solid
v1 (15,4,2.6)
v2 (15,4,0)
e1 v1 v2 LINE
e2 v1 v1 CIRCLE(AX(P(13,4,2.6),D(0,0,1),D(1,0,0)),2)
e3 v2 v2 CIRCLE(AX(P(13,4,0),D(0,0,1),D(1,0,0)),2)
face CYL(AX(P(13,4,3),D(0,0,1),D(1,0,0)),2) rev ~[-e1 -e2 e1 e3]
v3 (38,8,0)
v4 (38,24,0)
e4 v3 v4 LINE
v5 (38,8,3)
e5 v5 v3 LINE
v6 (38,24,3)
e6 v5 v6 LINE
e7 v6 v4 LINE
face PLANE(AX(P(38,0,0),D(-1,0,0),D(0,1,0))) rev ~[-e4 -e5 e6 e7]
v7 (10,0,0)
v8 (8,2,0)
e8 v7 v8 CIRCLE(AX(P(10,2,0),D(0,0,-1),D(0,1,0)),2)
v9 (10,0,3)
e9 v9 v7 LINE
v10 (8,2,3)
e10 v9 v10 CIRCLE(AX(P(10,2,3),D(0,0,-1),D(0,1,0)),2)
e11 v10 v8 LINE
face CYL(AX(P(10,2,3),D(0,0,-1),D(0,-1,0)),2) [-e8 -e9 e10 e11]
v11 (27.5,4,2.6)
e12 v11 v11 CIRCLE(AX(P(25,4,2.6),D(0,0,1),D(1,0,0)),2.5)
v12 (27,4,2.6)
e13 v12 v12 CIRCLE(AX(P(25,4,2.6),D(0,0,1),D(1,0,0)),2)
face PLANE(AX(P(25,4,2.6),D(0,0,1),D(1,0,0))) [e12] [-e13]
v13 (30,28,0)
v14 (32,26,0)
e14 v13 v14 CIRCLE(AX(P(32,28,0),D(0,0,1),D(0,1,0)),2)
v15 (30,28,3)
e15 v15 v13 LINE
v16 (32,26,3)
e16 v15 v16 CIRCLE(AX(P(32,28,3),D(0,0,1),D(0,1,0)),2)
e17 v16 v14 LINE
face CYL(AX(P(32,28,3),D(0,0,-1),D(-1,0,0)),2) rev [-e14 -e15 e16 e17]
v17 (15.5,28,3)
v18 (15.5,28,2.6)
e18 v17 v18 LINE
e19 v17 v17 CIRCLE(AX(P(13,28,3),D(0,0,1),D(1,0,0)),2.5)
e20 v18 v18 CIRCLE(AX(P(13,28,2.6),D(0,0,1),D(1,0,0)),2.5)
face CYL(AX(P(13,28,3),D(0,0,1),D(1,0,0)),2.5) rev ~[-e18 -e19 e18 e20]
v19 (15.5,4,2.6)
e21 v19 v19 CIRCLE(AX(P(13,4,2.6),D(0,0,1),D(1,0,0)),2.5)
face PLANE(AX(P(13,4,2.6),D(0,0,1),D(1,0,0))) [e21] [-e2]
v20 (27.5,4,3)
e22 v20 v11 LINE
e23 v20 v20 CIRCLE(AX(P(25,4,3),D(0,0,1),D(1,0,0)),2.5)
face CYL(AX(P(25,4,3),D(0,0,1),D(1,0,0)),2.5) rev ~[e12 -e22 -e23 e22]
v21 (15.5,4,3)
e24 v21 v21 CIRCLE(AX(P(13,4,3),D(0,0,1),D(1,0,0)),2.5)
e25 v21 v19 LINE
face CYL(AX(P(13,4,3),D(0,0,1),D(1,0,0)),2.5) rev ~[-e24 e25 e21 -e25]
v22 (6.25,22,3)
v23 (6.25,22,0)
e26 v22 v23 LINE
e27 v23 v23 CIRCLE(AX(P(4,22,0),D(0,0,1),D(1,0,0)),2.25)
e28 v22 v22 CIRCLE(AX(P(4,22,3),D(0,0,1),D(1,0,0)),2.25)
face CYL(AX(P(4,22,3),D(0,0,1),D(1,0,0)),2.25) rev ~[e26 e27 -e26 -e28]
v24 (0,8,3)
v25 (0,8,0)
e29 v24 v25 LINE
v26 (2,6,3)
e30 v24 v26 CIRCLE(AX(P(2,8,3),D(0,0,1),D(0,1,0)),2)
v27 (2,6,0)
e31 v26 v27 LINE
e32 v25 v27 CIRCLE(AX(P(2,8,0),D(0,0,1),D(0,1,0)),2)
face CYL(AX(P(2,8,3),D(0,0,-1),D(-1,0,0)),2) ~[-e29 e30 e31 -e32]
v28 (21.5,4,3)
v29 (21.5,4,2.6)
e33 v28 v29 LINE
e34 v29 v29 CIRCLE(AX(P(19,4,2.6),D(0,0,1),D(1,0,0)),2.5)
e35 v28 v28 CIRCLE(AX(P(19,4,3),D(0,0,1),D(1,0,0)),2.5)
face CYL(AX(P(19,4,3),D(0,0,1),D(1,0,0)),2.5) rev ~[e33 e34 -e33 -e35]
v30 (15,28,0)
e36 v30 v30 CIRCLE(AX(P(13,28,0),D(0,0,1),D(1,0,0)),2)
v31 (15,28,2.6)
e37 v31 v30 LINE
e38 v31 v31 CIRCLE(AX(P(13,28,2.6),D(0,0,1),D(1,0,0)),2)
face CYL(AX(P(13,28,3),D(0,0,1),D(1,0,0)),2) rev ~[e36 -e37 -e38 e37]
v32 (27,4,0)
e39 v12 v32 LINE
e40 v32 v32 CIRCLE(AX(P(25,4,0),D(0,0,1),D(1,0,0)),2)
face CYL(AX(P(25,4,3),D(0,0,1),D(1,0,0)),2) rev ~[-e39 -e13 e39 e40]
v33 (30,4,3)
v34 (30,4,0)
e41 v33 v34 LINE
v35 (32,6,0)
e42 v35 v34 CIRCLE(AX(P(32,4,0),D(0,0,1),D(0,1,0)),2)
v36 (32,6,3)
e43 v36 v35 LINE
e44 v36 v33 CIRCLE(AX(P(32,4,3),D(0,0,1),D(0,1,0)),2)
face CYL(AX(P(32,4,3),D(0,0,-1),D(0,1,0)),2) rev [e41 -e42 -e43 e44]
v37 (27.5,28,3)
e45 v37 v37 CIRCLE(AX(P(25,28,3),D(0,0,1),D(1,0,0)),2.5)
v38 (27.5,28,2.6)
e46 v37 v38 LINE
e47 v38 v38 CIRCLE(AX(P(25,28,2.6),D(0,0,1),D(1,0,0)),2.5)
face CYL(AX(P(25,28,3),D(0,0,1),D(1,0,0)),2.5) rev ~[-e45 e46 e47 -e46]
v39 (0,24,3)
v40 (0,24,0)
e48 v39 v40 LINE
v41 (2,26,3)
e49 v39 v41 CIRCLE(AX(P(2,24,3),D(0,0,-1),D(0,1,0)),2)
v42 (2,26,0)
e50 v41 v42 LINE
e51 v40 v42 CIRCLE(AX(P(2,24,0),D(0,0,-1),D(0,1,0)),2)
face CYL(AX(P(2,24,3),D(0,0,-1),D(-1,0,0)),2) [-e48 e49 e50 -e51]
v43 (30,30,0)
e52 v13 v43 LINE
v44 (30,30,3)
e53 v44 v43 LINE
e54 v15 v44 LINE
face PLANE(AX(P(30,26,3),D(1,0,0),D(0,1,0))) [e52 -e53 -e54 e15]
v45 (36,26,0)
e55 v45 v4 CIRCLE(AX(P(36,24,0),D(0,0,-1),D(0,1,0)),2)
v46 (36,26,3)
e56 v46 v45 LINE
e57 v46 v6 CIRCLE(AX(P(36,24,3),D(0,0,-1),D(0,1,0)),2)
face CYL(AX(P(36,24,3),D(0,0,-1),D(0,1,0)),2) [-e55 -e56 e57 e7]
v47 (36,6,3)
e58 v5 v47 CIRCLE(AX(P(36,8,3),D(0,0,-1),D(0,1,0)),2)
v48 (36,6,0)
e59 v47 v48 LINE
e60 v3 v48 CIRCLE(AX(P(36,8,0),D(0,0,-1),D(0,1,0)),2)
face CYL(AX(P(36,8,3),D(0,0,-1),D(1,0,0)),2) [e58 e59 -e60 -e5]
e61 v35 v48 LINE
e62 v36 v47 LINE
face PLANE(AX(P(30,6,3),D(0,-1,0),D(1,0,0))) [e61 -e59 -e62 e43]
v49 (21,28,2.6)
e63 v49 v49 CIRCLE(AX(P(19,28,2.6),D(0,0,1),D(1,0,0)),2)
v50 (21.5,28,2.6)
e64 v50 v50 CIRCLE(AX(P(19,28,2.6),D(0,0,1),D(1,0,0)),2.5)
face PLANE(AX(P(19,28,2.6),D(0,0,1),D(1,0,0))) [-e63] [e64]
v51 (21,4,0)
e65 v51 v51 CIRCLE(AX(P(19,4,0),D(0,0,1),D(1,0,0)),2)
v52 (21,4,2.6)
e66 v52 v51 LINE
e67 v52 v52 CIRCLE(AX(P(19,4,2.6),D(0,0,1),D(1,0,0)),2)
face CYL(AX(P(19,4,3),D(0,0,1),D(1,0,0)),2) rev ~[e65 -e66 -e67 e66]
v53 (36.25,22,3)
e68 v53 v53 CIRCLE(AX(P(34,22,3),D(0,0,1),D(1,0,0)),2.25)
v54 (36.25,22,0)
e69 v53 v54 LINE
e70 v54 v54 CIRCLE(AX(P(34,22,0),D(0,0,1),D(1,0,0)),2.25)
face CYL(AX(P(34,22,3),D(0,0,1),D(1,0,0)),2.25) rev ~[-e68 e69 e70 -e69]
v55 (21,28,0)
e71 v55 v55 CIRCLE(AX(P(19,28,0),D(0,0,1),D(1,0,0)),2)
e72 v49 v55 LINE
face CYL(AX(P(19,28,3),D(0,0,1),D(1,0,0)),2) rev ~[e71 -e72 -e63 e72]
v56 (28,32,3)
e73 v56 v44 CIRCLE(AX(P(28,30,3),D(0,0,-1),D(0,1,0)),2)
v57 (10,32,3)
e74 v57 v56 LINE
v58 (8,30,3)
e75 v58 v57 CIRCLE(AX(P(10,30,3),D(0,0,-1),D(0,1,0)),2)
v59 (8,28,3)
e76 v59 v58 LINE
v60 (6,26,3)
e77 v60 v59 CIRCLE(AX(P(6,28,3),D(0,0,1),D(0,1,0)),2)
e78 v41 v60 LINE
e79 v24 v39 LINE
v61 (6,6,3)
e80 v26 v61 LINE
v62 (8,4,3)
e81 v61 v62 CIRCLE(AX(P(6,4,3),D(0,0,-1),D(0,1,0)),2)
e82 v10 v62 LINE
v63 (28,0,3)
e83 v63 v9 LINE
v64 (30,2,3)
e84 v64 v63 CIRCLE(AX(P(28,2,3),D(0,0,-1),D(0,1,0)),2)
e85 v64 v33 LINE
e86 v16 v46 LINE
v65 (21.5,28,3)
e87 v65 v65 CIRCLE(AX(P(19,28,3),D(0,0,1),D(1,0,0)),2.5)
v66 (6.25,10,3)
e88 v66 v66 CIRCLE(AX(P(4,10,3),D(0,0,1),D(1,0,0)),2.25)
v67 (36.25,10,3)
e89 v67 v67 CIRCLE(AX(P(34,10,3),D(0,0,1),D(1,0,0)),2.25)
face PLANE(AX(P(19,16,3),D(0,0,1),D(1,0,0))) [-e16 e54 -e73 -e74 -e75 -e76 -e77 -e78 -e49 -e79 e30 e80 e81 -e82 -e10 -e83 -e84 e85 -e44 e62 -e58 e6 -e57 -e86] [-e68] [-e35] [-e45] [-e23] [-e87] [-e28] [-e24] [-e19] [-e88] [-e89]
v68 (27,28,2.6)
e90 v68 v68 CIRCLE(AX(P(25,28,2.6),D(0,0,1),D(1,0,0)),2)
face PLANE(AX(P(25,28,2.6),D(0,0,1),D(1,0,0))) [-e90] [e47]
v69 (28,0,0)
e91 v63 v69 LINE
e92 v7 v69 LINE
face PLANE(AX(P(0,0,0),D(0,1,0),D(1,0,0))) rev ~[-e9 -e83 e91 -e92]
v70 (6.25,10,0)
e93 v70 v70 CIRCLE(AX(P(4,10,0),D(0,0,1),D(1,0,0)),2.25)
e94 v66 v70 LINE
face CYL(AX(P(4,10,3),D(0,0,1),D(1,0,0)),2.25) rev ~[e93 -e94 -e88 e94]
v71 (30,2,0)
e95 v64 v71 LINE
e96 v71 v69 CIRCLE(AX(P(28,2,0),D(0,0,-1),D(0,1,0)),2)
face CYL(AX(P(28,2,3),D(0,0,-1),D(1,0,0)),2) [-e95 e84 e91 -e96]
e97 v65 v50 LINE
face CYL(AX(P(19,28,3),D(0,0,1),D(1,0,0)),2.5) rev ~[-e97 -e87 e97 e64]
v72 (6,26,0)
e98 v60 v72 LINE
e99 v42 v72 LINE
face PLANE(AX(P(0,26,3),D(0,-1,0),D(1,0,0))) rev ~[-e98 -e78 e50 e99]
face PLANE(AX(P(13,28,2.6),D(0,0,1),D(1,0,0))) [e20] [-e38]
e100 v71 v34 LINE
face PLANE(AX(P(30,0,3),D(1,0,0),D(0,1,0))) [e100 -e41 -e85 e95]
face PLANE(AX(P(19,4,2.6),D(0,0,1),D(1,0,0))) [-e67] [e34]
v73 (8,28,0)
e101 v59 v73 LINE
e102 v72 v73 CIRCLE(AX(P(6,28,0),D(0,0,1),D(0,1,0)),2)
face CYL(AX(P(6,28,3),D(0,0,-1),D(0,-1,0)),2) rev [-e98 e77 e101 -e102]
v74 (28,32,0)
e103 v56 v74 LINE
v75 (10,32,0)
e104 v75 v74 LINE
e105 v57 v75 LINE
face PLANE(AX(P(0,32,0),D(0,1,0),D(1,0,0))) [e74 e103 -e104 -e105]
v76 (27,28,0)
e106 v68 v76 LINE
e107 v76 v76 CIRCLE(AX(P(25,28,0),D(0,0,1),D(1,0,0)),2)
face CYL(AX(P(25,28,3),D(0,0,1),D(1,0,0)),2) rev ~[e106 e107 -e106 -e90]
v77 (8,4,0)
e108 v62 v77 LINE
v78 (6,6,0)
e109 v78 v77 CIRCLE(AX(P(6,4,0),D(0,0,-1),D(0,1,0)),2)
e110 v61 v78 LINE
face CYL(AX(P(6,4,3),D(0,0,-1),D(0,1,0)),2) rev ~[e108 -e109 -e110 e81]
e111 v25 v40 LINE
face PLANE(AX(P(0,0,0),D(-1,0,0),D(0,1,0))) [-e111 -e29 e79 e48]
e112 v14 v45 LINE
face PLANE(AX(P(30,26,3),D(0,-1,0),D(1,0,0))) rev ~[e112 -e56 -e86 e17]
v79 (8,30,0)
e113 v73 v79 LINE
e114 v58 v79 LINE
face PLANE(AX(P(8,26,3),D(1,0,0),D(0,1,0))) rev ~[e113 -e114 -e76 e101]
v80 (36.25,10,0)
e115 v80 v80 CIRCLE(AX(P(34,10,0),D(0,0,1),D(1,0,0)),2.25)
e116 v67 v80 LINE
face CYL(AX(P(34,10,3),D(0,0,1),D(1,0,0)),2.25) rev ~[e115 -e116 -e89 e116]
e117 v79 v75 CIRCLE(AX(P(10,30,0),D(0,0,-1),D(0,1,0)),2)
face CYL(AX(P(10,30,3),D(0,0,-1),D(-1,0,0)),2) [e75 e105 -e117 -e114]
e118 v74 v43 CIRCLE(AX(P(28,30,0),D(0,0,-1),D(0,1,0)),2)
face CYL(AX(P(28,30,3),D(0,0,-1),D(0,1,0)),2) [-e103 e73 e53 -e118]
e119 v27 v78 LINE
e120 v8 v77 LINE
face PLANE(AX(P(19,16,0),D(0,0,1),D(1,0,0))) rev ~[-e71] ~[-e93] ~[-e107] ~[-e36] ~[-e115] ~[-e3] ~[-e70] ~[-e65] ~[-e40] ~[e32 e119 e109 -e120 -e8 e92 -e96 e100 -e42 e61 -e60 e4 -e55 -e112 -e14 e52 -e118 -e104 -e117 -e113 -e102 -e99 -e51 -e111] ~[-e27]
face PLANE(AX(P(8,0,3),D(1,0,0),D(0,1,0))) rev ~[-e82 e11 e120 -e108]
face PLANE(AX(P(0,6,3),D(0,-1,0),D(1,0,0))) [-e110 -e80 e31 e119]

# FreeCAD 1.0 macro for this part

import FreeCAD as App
import Part
import Sketcher
from FreeCAD import Vector
Q = App.Units.Quantity


def edges_at(feature, points):
    """Names of the edges that pass closest to the given points."""
    edges = feature.Shape.Edges
    near = lambda p: min(range(len(edges)), key=lambda i: edges[i].distToShape(Part.Vertex(*p))[0])
    return sorted({f"Edge{near(p) + 1}" for p in points})

doc = App.newDocument("Part")
body = doc.addObject("PartDesign::Body", "Body")

sketch1 = body.newObject("Sketcher::SketchObject", "Sketch")
sketch1.AttachmentSupport = (doc.getObject("XY_Plane"), [""])
sketch1.MapMode = "FlatFace"
sketch1.addGeometry(Part.LineSegment(Vector(0, 32, 0), Vector(0, 0, 0)), False)
sketch1.addGeometry(Part.LineSegment(Vector(0, 0, 0), Vector(38, 0, 0)), False)
sketch1.addGeometry(Part.LineSegment(Vector(38, 0, 0), Vector(38, 32, 0)), False)
sketch1.addGeometry(Part.LineSegment(Vector(38, 32, 0), Vector(0, 32, 0)), False)
sketch1.addConstraint(Sketcher.Constraint("Coincident", 0, 2, 1, 1))
sketch1.addConstraint(Sketcher.Constraint("Coincident", 1, 2, 2, 1))
sketch1.addConstraint(Sketcher.Constraint("Coincident", 2, 2, 3, 1))
sketch1.addConstraint(Sketcher.Constraint("Coincident", 3, 2, 0, 1))
sketch1.addConstraint(Sketcher.Constraint("Vertical", 0))
sketch1.addConstraint(Sketcher.Constraint("Horizontal", 1))
sketch1.addConstraint(Sketcher.Constraint("Vertical", 2))
sketch1.addConstraint(Sketcher.Constraint("Horizontal", 3))
sketch1.addConstraint(Sketcher.Constraint("Coincident", 0, 2, -1, 1))
sketch1.addConstraint(Sketcher.Constraint("DistanceX", 1, 1, 1, 2, Q("38 mm")))
sketch1.addConstraint(Sketcher.Constraint("DistanceY", 0, 2, 0, 1, Q("32 mm")))
pad1 = body.newObject("PartDesign::Pad", "Pad")
pad1.Profile = sketch1
pad1.Length = 3

sketch2 = body.newObject("Sketcher::SketchObject", "Sketch001")
sketch2.AttachmentSupport = (doc.getObject("XY_Plane"), [""])
sketch2.MapMode = "FlatFace"
sketch2.AttachmentOffset = App.Placement(Vector(0, 0, 3), App.Rotation())
sketch2.addGeometry(Part.Circle(Vector(19, 28, 0), Vector(0, 0, 1), 2), False)
sketch2.addGeometry(Part.Circle(Vector(13, 28, 0), Vector(0, 0, 1), 2), False)
sketch2.addGeometry(Part.Circle(Vector(25, 28, 0), Vector(0, 0, 1), 2), False)
sketch2.addGeometry(Part.Circle(Vector(25, 4, 0), Vector(0, 0, 1), 2), False)
sketch2.addGeometry(Part.Circle(Vector(13, 4, 0), Vector(0, 0, 1), 2), False)
sketch2.addGeometry(Part.Circle(Vector(19, 4, 0), Vector(0, 0, 1), 2), False)
sketch2.addGeometry(Part.Circle(Vector(4, 22, 0), Vector(0, 0, 1), 2.25), False)
sketch2.addGeometry(Part.Circle(Vector(4, 10, 0), Vector(0, 0, 1), 2.25), False)
sketch2.addGeometry(Part.Circle(Vector(34, 10, 0), Vector(0, 0, 1), 2.25), False)
sketch2.addGeometry(Part.Circle(Vector(34, 22, 0), Vector(0, 0, 1), 2.25), False)
sketch2.addConstraint(Sketcher.Constraint("Equal", 0, 1))
sketch2.addConstraint(Sketcher.Constraint("Equal", 1, 2))
sketch2.addConstraint(Sketcher.Constraint("Equal", 2, 3))
sketch2.addConstraint(Sketcher.Constraint("Equal", 3, 4))
sketch2.addConstraint(Sketcher.Constraint("Equal", 4, 5))
sketch2.addConstraint(Sketcher.Constraint("Equal", 6, 7))
sketch2.addConstraint(Sketcher.Constraint("Equal", 7, 8))
sketch2.addConstraint(Sketcher.Constraint("Equal", 8, 9))
sketch2.addConstraint(Sketcher.Constraint("Horizontal", 0, 3, 1, 3))
sketch2.addConstraint(Sketcher.Constraint("Horizontal", 1, 3, 2, 3))
sketch2.addConstraint(Sketcher.Constraint("Horizontal", 3, 3, 4, 3))
sketch2.addConstraint(Sketcher.Constraint("Horizontal", 4, 3, 5, 3))
sketch2.addConstraint(Sketcher.Constraint("Horizontal", 7, 3, 8, 3))
sketch2.addConstraint(Sketcher.Constraint("Horizontal", 6, 3, 9, 3))
sketch2.addConstraint(Sketcher.Constraint("Vertical", 2, 3, 3, 3))
sketch2.addConstraint(Sketcher.Constraint("Vertical", 1, 3, 4, 3))
sketch2.addConstraint(Sketcher.Constraint("Vertical", 0, 3, 5, 3))
sketch2.addConstraint(Sketcher.Constraint("Vertical", 6, 3, 7, 3))
sketch2.addConstraint(Sketcher.Constraint("Vertical", 8, 3, 9, 3))
sketch2.addConstraint(Sketcher.Constraint("Diameter", 0, Q("4 mm")))
sketch2.addConstraint(Sketcher.Constraint("Diameter", 6, Q("4.5 mm")))
sketch2.addConstraint(Sketcher.Constraint("DistanceX", -1, 1, 0, 3, Q("19 mm")))
sketch2.addConstraint(Sketcher.Constraint("DistanceY", -1, 1, 0, 3, Q("28 mm")))
sketch2.addConstraint(Sketcher.Constraint("DistanceX", -1, 1, 1, 3, Q("13 mm")))
sketch2.addConstraint(Sketcher.Constraint("DistanceX", -1, 1, 2, 3, Q("25 mm")))
sketch2.addConstraint(Sketcher.Constraint("DistanceY", -1, 1, 3, 3, Q("4 mm")))
sketch2.addConstraint(Sketcher.Constraint("DistanceX", -1, 1, 6, 3, Q("4 mm")))
sketch2.addConstraint(Sketcher.Constraint("DistanceY", -1, 1, 6, 3, Q("22 mm")))
sketch2.addConstraint(Sketcher.Constraint("DistanceY", -1, 1, 7, 3, Q("10 mm")))
sketch2.addConstraint(Sketcher.Constraint("DistanceX", -1, 1, 8, 3, Q("34 mm")))
pocket1 = body.newObject("PartDesign::Pocket", "Pocket")
pocket1.Profile = sketch2
pocket1.Type = "ThroughAll"
pocket1.Midplane = True

sketch3 = body.newObject("Sketcher::SketchObject", "Sketch002")
sketch3.AttachmentSupport = (doc.getObject("XY_Plane"), [""])
sketch3.MapMode = "FlatFace"
sketch3.AttachmentOffset = App.Placement(Vector(0, 0, 3), App.Rotation())
sketch3.addGeometry(Part.Circle(Vector(13, 4, 0), Vector(0, 0, 1), 2.5), False)
sketch3.addGeometry(Part.Circle(Vector(19, 4, 0), Vector(0, 0, 1), 2.5), False)
sketch3.addGeometry(Part.Circle(Vector(25, 4, 0), Vector(0, 0, 1), 2.5), False)
sketch3.addGeometry(Part.Circle(Vector(25, 28, 0), Vector(0, 0, 1), 2.5), False)
sketch3.addGeometry(Part.Circle(Vector(19, 28, 0), Vector(0, 0, 1), 2.5), False)
sketch3.addGeometry(Part.Circle(Vector(13, 28, 0), Vector(0, 0, 1), 2.5), False)
sketch3.addConstraint(Sketcher.Constraint("Equal", 0, 1))
sketch3.addConstraint(Sketcher.Constraint("Equal", 1, 2))
sketch3.addConstraint(Sketcher.Constraint("Equal", 2, 3))
sketch3.addConstraint(Sketcher.Constraint("Equal", 3, 4))
sketch3.addConstraint(Sketcher.Constraint("Equal", 4, 5))
sketch3.addConstraint(Sketcher.Constraint("Horizontal", 0, 3, 1, 3))
sketch3.addConstraint(Sketcher.Constraint("Horizontal", 1, 3, 2, 3))
sketch3.addConstraint(Sketcher.Constraint("Horizontal", 3, 3, 4, 3))
sketch3.addConstraint(Sketcher.Constraint("Horizontal", 4, 3, 5, 3))
sketch3.addConstraint(Sketcher.Constraint("Vertical", 2, 3, 3, 3))
sketch3.addConstraint(Sketcher.Constraint("Vertical", 1, 3, 4, 3))
sketch3.addConstraint(Sketcher.Constraint("Vertical", 0, 3, 5, 3))
sketch3.addConstraint(Sketcher.Constraint("Diameter", 0, Q("5 mm")))
sketch3.addConstraint(Sketcher.Constraint("DistanceX", -1, 1, 0, 3, Q("13 mm")))
sketch3.addConstraint(Sketcher.Constraint("DistanceY", -1, 1, 0, 3, Q("4 mm")))
sketch3.addConstraint(Sketcher.Constraint("DistanceX", -1, 1, 1, 3, Q("19 mm")))
sketch3.addConstraint(Sketcher.Constraint("DistanceX", -1, 1, 2, 3, Q("25 mm")))
sketch3.addConstraint(Sketcher.Constraint("DistanceY", -1, 1, 3, 3, Q("28 mm")))
pocket2 = body.newObject("PartDesign::Pocket", "Pocket001")
pocket2.Profile = sketch3
pocket2.Length = 0.4

sketch4 = body.newObject("Sketcher::SketchObject", "Sketch003")
sketch4.AttachmentSupport = (doc.getObject("XY_Plane"), [""])
sketch4.MapMode = "FlatFace"
sketch4.AttachmentOffset = App.Placement(Vector(0, 0, 3), App.Rotation())
sketch4.addGeometry(Part.LineSegment(Vector(0, 32, 0), Vector(0, 26, 0)), False)
sketch4.addGeometry(Part.LineSegment(Vector(0, 26, 0), Vector(8, 26, 0)), False)
sketch4.addGeometry(Part.LineSegment(Vector(8, 26, 0), Vector(8, 32, 0)), False)
sketch4.addGeometry(Part.LineSegment(Vector(8, 32, 0), Vector(0, 32, 0)), False)
sketch4.addGeometry(Part.LineSegment(Vector(30, 32, 0), Vector(30, 26, 0)), False)
sketch4.addGeometry(Part.LineSegment(Vector(30, 26, 0), Vector(38, 26, 0)), False)
sketch4.addGeometry(Part.LineSegment(Vector(38, 26, 0), Vector(38, 32, 0)), False)
sketch4.addGeometry(Part.LineSegment(Vector(38, 32, 0), Vector(30, 32, 0)), False)
sketch4.addGeometry(Part.LineSegment(Vector(30, 6, 0), Vector(30, 0, 0)), False)
sketch4.addGeometry(Part.LineSegment(Vector(30, 0, 0), Vector(38, 0, 0)), False)
sketch4.addGeometry(Part.LineSegment(Vector(38, 0, 0), Vector(38, 6, 0)), False)
sketch4.addGeometry(Part.LineSegment(Vector(38, 6, 0), Vector(30, 6, 0)), False)
sketch4.addGeometry(Part.LineSegment(Vector(0, 6, 0), Vector(0, 0, 0)), False)
sketch4.addGeometry(Part.LineSegment(Vector(0, 0, 0), Vector(8, 0, 0)), False)
sketch4.addGeometry(Part.LineSegment(Vector(8, 0, 0), Vector(8, 6, 0)), False)
sketch4.addGeometry(Part.LineSegment(Vector(8, 6, 0), Vector(0, 6, 0)), False)
sketch4.addConstraint(Sketcher.Constraint("Coincident", 0, 2, 1, 1))
sketch4.addConstraint(Sketcher.Constraint("Coincident", 1, 2, 2, 1))
sketch4.addConstraint(Sketcher.Constraint("Coincident", 2, 2, 3, 1))
sketch4.addConstraint(Sketcher.Constraint("Coincident", 3, 2, 0, 1))
sketch4.addConstraint(Sketcher.Constraint("Coincident", 4, 2, 5, 1))
sketch4.addConstraint(Sketcher.Constraint("Coincident", 5, 2, 6, 1))
sketch4.addConstraint(Sketcher.Constraint("Coincident", 6, 2, 7, 1))
sketch4.addConstraint(Sketcher.Constraint("Coincident", 7, 2, 4, 1))
sketch4.addConstraint(Sketcher.Constraint("Coincident", 8, 2, 9, 1))
sketch4.addConstraint(Sketcher.Constraint("Coincident", 9, 2, 10, 1))
sketch4.addConstraint(Sketcher.Constraint("Coincident", 10, 2, 11, 1))
sketch4.addConstraint(Sketcher.Constraint("Coincident", 11, 2, 8, 1))
sketch4.addConstraint(Sketcher.Constraint("Coincident", 12, 2, 13, 1))
sketch4.addConstraint(Sketcher.Constraint("Coincident", 13, 2, 14, 1))
sketch4.addConstraint(Sketcher.Constraint("Coincident", 14, 2, 15, 1))
sketch4.addConstraint(Sketcher.Constraint("Coincident", 15, 2, 12, 1))
sketch4.addConstraint(Sketcher.Constraint("Vertical", 0))
sketch4.addConstraint(Sketcher.Constraint("Horizontal", 1))
sketch4.addConstraint(Sketcher.Constraint("Vertical", 2))
sketch4.addConstraint(Sketcher.Constraint("Horizontal", 3))
sketch4.addConstraint(Sketcher.Constraint("Vertical", 4))
sketch4.addConstraint(Sketcher.Constraint("Horizontal", 5))
sketch4.addConstraint(Sketcher.Constraint("Vertical", 6))
sketch4.addConstraint(Sketcher.Constraint("Horizontal", 7))
sketch4.addConstraint(Sketcher.Constraint("Vertical", 8))
sketch4.addConstraint(Sketcher.Constraint("Horizontal", 9))
sketch4.addConstraint(Sketcher.Constraint("Vertical", 10))
sketch4.addConstraint(Sketcher.Constraint("Horizontal", 11))
sketch4.addConstraint(Sketcher.Constraint("Vertical", 12))
sketch4.addConstraint(Sketcher.Constraint("Horizontal", 13))
sketch4.addConstraint(Sketcher.Constraint("Vertical", 14))
sketch4.addConstraint(Sketcher.Constraint("Horizontal", 15))
sketch4.addConstraint(Sketcher.Constraint("Coincident", 12, 2, -1, 1))
sketch4.addConstraint(Sketcher.Constraint("PointOnObject", 0, 2, -2))
sketch4.addConstraint(Sketcher.Constraint("PointOnObject", 8, 2, -1))
sketch4.addConstraint(Sketcher.Constraint("Horizontal", 1, 2, 4, 2))
sketch4.addConstraint(Sketcher.Constraint("Horizontal", 3, 2, 6, 2))
sketch4.addConstraint(Sketcher.Constraint("Horizontal", 11, 2, 14, 2))
sketch4.addConstraint(Sketcher.Constraint("Vertical", 7, 2, 8, 2))
sketch4.addConstraint(Sketcher.Constraint("Vertical", 6, 2, 9, 2))
sketch4.addConstraint(Sketcher.Constraint("Vertical", 2, 2, 13, 2))
sketch4.addConstraint(Sketcher.Constraint("Equal", 3, 5))
sketch4.addConstraint(Sketcher.Constraint("Equal", 6, 8))
sketch4.addConstraint(Sketcher.Constraint("DistanceX", 1, 1, 1, 2, Q("8 mm")))
sketch4.addConstraint(Sketcher.Constraint("DistanceY", 0, 2, 0, 1, Q("6 mm")))
sketch4.addConstraint(Sketcher.Constraint("DistanceY", -1, 1, 0, 2, Q("26 mm")))
sketch4.addConstraint(Sketcher.Constraint("DistanceX", -1, 1, 4, 2, Q("30 mm")))
pocket3 = body.newObject("PartDesign::Pocket", "Pocket002")
pocket3.Profile = sketch4
pocket3.Type = "ThroughAll"
pocket3.Midplane = True
doc.recompute()

fillet = body.newObject("PartDesign::Fillet", "Fillet")
fillet.Base = (pocket3, edges_at(pocket3, [
    (0, 26, 1.5),
    (8, 32, 1.5),
    (8, 26, 1.5),
    (30, 32, 1.5),
    (38, 26, 1.5),
    (30, 26, 1.5),
    (38, 6, 1.5),
    (30, 0, 1.5),
    (30, 6, 1.5),
    (8, 0, 1.5),
    (0, 6, 1.5),
    (8, 6, 1.5),
]))
fillet.Radius = 2

doc.recompute()
